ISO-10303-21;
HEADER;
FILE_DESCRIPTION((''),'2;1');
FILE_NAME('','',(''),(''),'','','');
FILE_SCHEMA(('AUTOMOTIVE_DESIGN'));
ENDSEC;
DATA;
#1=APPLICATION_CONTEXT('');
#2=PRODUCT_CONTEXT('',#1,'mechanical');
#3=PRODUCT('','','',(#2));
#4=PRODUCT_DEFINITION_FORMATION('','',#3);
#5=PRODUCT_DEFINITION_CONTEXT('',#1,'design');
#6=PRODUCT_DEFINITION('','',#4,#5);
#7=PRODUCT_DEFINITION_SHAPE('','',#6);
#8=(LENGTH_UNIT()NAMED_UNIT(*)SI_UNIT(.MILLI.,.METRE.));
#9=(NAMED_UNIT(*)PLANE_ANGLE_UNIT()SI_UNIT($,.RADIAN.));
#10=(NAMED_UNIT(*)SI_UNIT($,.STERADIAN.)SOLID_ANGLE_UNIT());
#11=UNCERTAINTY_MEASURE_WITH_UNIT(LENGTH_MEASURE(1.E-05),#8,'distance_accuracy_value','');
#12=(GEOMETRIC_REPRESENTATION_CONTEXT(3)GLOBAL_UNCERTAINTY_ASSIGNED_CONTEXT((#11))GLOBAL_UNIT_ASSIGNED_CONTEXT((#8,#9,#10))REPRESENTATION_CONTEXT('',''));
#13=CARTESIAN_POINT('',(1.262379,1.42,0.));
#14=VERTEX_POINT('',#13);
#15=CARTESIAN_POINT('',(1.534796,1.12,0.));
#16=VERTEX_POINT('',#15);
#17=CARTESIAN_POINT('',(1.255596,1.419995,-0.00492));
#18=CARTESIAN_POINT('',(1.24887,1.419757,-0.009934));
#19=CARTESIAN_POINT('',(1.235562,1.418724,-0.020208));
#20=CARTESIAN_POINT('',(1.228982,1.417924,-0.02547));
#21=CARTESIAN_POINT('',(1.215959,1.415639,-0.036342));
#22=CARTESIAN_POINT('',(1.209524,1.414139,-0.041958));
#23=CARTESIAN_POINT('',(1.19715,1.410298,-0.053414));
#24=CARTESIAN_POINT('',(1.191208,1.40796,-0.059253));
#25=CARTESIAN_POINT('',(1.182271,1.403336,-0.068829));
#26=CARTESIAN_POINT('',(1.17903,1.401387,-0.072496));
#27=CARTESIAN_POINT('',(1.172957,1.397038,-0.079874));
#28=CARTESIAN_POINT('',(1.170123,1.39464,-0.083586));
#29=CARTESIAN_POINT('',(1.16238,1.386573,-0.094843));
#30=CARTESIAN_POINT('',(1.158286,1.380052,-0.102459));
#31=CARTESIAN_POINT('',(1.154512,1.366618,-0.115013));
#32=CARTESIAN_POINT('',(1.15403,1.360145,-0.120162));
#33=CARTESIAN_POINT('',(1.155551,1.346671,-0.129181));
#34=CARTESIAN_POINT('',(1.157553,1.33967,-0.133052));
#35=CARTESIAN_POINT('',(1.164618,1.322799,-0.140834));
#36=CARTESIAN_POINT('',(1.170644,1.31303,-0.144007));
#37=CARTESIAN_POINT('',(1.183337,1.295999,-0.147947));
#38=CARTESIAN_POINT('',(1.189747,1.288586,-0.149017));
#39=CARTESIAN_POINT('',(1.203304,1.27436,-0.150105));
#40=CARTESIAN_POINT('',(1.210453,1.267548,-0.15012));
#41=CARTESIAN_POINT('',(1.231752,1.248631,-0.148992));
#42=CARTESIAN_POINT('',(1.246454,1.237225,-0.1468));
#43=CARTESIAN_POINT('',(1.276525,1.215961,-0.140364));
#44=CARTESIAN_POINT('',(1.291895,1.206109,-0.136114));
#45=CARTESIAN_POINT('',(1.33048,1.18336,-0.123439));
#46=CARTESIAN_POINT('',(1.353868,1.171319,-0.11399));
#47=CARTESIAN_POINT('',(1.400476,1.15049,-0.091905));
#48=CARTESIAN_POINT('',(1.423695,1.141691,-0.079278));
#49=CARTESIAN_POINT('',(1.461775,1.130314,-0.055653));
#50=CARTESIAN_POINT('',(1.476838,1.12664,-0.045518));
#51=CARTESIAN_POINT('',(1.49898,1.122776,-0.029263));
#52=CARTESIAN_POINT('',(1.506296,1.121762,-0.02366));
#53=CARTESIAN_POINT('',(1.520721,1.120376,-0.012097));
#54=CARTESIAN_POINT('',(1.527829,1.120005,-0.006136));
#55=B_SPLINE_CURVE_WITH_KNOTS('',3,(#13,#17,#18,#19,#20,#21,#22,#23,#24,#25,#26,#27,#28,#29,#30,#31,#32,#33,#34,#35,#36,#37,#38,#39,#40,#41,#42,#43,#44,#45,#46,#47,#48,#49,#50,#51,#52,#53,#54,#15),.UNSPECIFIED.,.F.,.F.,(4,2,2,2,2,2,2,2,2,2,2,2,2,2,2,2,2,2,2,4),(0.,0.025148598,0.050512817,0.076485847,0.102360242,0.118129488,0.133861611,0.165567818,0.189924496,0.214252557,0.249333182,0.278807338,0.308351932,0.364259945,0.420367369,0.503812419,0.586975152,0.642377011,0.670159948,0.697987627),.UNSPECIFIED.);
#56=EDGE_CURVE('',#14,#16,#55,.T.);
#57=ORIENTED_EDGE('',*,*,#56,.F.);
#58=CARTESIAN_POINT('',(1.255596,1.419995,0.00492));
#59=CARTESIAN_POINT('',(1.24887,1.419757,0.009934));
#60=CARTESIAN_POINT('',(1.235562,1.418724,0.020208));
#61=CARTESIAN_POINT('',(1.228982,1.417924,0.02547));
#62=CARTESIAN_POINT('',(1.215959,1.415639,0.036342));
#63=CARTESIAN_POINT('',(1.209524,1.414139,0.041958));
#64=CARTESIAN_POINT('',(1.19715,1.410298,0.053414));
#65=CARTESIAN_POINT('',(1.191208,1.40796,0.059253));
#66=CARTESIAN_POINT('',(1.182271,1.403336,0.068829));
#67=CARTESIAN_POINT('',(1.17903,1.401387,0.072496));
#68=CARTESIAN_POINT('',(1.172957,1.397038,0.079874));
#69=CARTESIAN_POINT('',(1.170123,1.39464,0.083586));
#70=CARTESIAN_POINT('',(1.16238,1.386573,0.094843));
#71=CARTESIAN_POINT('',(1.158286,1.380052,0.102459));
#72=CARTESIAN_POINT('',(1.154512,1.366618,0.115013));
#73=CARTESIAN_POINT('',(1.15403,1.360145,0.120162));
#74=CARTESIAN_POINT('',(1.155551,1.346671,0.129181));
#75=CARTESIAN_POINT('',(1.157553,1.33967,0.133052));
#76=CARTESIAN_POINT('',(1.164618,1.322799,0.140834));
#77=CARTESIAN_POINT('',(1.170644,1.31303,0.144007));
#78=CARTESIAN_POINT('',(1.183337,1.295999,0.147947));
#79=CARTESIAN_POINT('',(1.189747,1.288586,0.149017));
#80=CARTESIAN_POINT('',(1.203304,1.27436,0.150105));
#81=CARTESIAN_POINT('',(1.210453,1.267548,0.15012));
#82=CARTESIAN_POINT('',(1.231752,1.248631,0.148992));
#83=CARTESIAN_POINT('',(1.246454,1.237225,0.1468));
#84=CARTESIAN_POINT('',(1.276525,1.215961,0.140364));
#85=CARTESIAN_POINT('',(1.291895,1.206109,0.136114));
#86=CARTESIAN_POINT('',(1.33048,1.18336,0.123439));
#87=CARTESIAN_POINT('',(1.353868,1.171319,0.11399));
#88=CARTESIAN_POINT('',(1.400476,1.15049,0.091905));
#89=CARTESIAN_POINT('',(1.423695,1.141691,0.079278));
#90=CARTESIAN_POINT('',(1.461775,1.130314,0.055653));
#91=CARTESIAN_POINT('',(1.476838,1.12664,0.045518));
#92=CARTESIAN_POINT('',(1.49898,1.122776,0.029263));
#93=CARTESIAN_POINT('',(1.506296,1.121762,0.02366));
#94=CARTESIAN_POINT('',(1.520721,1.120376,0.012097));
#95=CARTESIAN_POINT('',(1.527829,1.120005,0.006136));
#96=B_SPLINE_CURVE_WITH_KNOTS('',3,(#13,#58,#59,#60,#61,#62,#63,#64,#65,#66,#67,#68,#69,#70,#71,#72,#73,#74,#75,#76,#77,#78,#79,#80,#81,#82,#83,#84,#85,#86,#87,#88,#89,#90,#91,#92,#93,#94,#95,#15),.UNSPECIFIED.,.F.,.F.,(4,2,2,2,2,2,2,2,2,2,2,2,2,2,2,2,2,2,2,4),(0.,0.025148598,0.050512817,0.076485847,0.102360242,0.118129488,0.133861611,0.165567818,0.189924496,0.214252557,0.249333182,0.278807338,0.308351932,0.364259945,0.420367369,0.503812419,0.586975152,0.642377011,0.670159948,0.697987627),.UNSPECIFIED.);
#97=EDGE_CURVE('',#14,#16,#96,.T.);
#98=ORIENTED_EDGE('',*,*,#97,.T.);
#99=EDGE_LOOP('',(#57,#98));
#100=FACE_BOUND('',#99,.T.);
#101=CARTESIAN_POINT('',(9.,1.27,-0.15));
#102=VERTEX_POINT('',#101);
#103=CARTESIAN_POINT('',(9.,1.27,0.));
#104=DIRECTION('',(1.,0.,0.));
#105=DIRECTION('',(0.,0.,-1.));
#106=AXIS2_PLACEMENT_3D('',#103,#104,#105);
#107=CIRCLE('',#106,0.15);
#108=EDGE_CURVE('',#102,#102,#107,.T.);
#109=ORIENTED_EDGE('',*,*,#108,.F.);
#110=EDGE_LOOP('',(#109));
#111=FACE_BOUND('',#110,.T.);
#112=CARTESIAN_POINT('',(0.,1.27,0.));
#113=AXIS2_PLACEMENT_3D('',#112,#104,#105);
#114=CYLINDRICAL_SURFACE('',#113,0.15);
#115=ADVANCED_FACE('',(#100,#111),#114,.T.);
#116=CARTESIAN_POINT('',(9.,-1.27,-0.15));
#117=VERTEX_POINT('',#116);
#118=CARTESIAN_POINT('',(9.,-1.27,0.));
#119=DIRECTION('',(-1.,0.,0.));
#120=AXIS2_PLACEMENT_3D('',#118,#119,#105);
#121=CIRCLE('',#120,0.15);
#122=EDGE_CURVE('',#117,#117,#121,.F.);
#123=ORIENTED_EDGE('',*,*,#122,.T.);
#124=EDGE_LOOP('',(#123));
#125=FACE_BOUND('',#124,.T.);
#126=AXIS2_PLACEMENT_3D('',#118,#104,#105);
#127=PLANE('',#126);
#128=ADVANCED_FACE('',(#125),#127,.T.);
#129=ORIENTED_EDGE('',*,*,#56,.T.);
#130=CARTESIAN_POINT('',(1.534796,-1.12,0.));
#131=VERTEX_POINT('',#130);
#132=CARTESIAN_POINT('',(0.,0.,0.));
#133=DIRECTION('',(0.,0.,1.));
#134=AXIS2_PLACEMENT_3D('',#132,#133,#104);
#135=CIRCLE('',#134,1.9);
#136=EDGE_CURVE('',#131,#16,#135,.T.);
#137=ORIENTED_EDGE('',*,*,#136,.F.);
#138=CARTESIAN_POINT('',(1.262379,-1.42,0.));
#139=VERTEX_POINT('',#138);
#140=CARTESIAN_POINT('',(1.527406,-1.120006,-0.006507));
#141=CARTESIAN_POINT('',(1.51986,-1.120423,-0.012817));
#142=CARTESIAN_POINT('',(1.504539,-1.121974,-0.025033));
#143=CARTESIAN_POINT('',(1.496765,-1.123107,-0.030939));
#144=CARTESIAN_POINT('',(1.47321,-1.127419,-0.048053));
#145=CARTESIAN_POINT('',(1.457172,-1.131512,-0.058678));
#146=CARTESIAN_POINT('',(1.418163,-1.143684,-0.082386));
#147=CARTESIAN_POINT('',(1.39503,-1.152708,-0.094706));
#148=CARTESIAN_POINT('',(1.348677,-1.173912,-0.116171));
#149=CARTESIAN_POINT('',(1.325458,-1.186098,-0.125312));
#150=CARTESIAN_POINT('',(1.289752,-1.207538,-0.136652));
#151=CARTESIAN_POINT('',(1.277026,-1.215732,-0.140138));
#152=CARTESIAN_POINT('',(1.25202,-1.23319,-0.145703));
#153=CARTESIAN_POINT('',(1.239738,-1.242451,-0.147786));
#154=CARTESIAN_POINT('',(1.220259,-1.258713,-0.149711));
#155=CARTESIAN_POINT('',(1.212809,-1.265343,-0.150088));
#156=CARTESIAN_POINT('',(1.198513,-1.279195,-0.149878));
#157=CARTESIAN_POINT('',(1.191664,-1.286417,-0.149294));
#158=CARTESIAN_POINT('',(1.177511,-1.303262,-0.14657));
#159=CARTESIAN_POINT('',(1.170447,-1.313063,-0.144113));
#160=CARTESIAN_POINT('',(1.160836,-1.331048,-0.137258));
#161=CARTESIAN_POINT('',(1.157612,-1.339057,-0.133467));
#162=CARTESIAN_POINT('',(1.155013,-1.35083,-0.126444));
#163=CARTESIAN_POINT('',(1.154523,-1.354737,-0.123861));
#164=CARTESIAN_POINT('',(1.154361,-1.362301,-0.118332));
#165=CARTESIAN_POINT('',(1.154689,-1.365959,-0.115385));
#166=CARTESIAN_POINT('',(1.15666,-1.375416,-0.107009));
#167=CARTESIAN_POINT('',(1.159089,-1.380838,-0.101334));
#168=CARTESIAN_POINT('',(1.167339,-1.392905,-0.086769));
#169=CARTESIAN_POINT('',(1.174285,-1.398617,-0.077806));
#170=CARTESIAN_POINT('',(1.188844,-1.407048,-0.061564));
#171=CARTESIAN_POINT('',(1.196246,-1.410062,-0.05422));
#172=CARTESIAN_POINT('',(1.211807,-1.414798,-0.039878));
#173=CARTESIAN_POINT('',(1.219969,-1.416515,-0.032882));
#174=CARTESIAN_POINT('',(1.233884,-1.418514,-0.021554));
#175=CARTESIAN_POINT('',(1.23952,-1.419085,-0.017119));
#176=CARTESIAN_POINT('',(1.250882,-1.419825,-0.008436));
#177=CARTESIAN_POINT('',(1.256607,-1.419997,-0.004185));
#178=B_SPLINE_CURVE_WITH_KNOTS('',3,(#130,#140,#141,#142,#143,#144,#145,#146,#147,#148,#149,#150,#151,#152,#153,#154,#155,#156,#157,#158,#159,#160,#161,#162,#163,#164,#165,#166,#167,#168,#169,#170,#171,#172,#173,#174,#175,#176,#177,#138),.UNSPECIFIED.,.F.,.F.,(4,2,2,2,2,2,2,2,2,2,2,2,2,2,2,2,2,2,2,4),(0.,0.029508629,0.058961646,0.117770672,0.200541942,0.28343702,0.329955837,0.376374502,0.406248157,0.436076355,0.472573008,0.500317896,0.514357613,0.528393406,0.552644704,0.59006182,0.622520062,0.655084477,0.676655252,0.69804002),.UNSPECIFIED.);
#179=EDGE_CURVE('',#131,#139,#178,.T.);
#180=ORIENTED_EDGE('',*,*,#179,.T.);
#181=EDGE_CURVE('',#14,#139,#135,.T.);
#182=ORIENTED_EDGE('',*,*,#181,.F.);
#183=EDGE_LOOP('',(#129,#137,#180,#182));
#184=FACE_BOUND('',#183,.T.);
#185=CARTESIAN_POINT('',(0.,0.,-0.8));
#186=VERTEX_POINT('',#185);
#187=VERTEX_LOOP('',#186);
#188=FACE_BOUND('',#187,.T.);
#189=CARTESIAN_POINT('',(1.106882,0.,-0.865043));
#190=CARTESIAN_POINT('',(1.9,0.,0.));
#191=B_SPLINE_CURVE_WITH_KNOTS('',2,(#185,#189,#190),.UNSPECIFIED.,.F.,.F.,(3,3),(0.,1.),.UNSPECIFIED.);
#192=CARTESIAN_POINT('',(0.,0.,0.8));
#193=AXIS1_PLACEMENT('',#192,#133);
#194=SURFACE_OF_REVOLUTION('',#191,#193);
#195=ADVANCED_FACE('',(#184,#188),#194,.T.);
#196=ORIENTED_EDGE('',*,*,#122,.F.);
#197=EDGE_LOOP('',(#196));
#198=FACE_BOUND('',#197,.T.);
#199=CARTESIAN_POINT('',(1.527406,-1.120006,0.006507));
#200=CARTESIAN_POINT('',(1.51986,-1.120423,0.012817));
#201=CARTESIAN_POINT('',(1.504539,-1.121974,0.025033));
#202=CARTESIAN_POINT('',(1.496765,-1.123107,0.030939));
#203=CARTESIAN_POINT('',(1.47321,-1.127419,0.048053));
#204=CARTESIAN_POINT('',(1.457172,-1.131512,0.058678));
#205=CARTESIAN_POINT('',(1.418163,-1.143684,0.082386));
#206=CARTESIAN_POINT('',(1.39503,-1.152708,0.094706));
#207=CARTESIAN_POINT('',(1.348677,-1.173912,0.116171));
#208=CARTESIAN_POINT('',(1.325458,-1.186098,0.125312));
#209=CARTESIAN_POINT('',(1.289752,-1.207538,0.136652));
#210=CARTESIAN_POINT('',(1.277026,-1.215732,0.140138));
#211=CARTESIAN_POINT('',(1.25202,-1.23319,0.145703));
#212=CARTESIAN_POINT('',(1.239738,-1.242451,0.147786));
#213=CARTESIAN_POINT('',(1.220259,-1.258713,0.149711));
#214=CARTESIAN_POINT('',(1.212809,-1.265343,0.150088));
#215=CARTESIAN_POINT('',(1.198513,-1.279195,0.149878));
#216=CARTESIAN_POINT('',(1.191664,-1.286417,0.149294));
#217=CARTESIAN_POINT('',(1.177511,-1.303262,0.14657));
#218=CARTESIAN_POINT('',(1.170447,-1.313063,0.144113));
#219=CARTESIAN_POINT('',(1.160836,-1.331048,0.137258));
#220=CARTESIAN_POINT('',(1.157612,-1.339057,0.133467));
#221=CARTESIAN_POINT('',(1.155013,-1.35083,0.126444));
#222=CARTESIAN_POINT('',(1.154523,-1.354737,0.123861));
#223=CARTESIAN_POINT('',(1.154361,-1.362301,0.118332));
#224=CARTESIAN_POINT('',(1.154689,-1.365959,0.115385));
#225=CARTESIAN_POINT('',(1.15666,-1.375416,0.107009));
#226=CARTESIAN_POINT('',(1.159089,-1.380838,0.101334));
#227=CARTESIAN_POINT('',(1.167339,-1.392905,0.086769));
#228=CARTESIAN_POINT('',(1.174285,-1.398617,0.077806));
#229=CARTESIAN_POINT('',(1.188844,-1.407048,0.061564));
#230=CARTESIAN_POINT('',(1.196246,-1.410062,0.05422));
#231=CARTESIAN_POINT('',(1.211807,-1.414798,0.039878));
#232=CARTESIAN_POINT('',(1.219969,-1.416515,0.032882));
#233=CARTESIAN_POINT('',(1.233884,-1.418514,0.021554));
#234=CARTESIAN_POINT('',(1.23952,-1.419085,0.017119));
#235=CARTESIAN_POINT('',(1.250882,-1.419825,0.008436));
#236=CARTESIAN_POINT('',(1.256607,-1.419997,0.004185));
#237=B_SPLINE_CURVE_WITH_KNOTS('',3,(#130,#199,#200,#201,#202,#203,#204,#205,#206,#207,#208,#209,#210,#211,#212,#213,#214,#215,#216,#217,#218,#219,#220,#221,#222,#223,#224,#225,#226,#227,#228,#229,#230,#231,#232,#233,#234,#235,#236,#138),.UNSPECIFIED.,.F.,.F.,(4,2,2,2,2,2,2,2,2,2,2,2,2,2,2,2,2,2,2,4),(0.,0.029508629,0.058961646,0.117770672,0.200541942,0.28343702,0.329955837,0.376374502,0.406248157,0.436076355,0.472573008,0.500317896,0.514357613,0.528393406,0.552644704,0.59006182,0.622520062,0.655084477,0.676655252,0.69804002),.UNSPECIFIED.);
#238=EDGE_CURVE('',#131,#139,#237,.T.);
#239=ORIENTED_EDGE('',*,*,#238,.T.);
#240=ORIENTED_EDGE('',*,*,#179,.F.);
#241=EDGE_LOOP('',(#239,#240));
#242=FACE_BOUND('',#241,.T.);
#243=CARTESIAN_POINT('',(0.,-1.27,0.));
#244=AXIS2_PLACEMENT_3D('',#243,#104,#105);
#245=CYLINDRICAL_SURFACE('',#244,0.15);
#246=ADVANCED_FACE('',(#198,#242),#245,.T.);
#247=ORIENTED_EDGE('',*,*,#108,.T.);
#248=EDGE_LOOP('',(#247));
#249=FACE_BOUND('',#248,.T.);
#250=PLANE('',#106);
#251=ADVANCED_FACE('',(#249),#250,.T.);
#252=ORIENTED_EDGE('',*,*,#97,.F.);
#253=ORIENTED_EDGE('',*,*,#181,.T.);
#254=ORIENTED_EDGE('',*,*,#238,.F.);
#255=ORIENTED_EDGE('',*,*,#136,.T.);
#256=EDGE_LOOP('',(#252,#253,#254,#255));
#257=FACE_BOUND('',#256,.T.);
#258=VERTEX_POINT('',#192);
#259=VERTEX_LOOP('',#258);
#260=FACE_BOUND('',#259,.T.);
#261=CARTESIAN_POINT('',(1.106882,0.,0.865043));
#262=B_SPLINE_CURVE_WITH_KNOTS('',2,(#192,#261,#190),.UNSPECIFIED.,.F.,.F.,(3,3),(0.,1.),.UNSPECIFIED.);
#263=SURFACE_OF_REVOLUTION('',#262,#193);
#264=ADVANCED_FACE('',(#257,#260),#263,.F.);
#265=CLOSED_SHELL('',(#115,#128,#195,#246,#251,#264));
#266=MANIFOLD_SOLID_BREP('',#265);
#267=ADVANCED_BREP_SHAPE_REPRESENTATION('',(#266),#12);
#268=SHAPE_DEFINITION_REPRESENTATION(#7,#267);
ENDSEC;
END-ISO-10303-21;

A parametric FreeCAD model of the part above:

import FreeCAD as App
import Part
import Sketcher

V = App.Vector
Q = App.Units.Quantity

doc = App.newDocument("Part")
params = doc.addObject("Spreadsheet::Sheet", "Params")
for row, (alias, value) in enumerate([
    ("revolution_angle", "360 deg"),
    ("sketch2_diameter", "0.3 mm"),
    ("sketch3_width", "9 mm"),
], start=1):
    params.set(f"A{row}", alias)
    params.set(f"B{row}", "=" + value)
    params.setAlias(f"B{row}", alias)

body = doc.addObject("PartDesign::Body", "Body")

sketch1 = body.newObject("Sketcher::SketchObject", "Sketch")
sketch1.AttachmentSupport = (doc.getObject("XZ_Plane"), [""])
sketch1.MapMode = "FlatFace"
sketch1.addGeometry([
    Part.BSplineCurve([V(0, 0.8, 0), V(1.106882, 0.865043, 0), V(1.9, 0, 0)], [3, 3], [0, 1], False, 2, [1, 1, 1], False),
    Part.BSplineCurve([V(0, -0.8, 0), V(1.106882, -0.865043, 0), V(1.9, 0, 0)], [3, 3], [0, 1], False, 2, [1, 1, 1], False),
    Part.LineSegment(V(0, -0.8, 0), V(0, 0.8, 0)),
], False)
sketch1.addConstraint([
    Sketcher.Constraint("Block", 0),
    Sketcher.Constraint("Block", 1),
    Sketcher.Constraint("Coincident", 1, 1, 2, 1),
    Sketcher.Constraint("Coincident", 2, 2, 0, 1),
])
revolution = body.newObject("PartDesign::Revolution", "Revolution")
revolution.Profile = sketch1
revolution.ReferenceAxis = (sketch1, ["V_Axis"])
revolution.setExpression("Angle", "Params.revolution_angle")

sketch2 = body.newObject("Sketcher::SketchObject", "Sketch001")
sketch2.AttachmentSupport = (doc.getObject("YZ_Plane"), [""])
sketch2.MapMode = "FlatFace"
sketch2.addGeometry(Part.Circle(V(1.27, 0, 0), V(0, 0, 1), 0.15), False)
sketch2.addConstraint([
    Sketcher.Constraint("PointOnObject", 0, 3, -1),
    Sketcher.Constraint("Diameter", 0, Q("0.3 mm")),
    Sketcher.Constraint("DistanceX", -1, 1, 0, 3, Q("1.27 mm")),
])
sketch2.setExpression("Constraints[1]", "Params.sketch2_diameter")

sketch3 = body.newObject("Sketcher::SketchObject", "Sketch002")
sketch3.AttachmentSupport = (doc.getObject("XY_Plane"), [""])
sketch3.MapMode = "FlatFace"
sketch3.addGeometry(Part.LineSegment(V(0, 1, 0), V(9, 1, 0)), False)
sketch3.addConstraint([
    Sketcher.Constraint("Horizontal", 0),
    Sketcher.Constraint("PointOnObject", 0, 1, -2),
    Sketcher.Constraint("DistanceX", 0, 1, 0, 2, Q("9 mm")),
    Sketcher.Constraint("DistanceY", -1, 1, 0, 1, Q("1.27 mm")),
])
sketch3.setExpression("Constraints[2]", "Params.sketch3_width")
doc.recompute()

additivepipe = body.newObject("PartDesign::AdditivePipe", "AdditivePipe")
additivepipe.Profile = sketch2
additivepipe.Spine = (sketch3, ["Edge1"])
doc.recompute()

mirrored = body.newObject("PartDesign::Mirrored", "Mirrored")
mirrored.Originals = [additivepipe]
mirrored.MirrorPlane = (doc.getObject("XZ_Plane"), [""])
body.Tip = mirrored

doc.recompute()
